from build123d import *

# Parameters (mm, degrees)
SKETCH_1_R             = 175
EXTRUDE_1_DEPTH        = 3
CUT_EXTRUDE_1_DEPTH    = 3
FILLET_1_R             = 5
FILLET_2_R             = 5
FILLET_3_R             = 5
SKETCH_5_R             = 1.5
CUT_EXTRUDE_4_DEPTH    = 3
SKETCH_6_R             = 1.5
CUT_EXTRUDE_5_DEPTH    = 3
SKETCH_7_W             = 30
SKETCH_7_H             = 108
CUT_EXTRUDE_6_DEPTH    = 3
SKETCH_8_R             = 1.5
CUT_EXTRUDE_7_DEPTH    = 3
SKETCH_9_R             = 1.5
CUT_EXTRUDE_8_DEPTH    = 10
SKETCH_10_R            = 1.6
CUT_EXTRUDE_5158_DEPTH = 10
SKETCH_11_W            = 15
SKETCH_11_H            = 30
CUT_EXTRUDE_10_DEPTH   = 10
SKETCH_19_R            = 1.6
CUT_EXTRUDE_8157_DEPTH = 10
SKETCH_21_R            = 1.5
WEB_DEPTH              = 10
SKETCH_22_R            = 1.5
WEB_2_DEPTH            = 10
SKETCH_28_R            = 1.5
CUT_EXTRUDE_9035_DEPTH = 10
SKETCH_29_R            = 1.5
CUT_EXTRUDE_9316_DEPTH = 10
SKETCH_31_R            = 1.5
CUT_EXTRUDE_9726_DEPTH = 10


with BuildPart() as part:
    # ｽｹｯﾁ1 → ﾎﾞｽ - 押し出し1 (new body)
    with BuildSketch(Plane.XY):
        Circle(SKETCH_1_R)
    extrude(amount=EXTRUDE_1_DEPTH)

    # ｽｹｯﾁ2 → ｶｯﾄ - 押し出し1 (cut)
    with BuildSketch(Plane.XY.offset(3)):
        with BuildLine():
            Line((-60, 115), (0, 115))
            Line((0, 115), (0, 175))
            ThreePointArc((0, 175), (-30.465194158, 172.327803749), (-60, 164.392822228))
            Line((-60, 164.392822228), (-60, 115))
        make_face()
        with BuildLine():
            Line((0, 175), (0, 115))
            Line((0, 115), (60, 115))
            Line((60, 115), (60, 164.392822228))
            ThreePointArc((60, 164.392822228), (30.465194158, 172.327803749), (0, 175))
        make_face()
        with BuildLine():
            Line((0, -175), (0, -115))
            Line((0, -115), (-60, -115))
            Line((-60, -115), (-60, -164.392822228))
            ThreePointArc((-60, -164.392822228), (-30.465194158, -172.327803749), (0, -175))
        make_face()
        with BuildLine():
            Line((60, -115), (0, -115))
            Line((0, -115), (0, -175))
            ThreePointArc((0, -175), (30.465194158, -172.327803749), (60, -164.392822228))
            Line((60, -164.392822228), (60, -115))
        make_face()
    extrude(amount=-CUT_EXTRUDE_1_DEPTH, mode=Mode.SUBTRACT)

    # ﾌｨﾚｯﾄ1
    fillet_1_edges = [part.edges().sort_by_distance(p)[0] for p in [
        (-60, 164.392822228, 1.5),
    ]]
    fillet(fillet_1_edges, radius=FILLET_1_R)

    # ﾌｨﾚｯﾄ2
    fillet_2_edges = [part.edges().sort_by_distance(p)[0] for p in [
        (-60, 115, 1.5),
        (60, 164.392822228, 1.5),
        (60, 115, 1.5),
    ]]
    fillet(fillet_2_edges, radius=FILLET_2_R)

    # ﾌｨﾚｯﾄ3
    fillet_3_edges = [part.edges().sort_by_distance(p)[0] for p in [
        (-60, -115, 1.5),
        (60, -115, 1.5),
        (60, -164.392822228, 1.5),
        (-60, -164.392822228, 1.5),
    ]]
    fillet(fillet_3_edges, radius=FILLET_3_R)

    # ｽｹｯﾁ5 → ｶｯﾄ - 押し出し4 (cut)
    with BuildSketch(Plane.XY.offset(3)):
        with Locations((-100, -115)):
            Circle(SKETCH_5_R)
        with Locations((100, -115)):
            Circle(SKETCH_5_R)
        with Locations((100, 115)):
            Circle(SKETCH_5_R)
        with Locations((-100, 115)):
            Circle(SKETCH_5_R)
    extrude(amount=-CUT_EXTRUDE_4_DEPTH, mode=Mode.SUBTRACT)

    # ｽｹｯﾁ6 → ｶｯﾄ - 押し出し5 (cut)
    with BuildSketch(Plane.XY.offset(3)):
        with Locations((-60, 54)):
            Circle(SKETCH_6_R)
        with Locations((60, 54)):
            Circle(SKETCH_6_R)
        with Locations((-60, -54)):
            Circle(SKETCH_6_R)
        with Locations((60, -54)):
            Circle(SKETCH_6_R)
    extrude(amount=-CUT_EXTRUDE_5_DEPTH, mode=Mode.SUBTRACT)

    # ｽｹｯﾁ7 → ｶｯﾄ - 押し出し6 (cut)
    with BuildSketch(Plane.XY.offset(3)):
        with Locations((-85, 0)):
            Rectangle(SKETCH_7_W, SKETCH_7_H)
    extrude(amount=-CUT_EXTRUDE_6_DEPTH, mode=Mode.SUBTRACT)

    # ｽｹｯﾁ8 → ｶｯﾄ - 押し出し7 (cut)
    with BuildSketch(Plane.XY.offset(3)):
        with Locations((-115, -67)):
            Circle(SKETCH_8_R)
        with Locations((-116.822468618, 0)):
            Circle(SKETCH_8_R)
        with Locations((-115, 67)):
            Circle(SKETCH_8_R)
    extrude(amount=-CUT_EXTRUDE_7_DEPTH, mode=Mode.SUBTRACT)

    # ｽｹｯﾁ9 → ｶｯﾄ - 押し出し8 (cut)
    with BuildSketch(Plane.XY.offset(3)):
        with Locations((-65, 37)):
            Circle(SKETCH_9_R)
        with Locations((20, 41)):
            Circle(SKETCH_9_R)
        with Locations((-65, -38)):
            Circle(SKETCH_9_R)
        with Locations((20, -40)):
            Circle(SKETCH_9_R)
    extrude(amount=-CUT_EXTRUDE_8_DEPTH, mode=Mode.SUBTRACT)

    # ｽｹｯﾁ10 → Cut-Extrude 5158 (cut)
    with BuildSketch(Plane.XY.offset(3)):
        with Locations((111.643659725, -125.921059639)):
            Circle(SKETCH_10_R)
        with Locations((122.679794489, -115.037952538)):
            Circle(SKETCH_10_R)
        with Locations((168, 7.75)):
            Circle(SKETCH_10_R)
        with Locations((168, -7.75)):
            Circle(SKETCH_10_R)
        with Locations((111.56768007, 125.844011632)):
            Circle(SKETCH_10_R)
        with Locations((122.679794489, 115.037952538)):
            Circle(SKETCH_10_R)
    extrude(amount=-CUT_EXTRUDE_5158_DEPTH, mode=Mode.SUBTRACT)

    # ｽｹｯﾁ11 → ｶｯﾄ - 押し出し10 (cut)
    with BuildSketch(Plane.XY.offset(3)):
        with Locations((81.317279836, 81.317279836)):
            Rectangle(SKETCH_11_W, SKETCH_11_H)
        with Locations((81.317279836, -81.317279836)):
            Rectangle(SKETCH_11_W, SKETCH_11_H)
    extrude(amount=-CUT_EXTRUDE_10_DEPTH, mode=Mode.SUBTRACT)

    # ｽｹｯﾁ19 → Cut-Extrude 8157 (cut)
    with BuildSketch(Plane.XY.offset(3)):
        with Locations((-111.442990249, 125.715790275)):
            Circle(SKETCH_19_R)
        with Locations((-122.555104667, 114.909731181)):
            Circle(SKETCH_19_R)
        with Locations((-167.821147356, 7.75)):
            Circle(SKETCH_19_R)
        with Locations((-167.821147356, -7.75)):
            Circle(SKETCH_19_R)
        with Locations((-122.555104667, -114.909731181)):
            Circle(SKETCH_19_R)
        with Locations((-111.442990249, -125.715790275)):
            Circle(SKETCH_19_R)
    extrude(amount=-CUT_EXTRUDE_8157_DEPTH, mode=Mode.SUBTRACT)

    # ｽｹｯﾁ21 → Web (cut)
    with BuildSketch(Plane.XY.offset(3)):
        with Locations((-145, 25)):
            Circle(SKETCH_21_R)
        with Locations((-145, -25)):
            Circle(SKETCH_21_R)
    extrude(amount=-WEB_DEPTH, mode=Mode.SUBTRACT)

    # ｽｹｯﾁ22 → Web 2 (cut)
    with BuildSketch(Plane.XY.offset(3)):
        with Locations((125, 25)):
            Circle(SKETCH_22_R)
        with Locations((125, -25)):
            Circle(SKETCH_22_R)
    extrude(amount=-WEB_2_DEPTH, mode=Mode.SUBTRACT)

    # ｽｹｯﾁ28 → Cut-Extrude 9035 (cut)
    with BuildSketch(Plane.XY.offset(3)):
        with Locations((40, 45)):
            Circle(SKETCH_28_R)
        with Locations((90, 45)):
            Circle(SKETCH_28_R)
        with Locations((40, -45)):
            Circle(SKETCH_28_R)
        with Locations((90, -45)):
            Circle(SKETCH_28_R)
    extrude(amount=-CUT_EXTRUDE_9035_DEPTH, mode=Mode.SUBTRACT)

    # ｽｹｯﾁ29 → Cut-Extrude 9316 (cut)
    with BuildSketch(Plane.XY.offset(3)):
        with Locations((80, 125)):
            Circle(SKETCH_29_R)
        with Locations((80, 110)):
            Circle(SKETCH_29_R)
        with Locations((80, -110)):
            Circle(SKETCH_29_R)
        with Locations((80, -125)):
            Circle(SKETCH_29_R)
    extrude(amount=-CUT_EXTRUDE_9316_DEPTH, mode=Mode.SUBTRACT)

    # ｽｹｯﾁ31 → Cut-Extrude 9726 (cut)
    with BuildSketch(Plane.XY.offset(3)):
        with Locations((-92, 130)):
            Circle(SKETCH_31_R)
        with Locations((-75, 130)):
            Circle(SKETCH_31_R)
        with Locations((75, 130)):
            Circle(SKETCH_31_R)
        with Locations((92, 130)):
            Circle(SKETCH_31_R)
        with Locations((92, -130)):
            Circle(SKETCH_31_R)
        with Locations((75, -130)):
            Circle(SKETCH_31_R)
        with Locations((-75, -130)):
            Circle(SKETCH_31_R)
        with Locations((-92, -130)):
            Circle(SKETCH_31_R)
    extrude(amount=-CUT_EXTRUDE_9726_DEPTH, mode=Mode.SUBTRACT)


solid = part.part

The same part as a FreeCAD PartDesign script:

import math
import FreeCAD as App
import Part
import Sketcher


def edges_at(feature, points):
    """Names of the edges that pass closest to the given points."""
    edges = feature.Shape.Edges
    near = lambda p: min(range(len(edges)), key=lambda i: edges[i].distToShape(Part.Vertex(*p))[0])
    return sorted({f"Edge{near(p) + 1}" for p in points})

doc = App.newDocument("Part")
params = doc.addObject("Spreadsheet::Sheet", "Params")
for row, (alias, value) in enumerate([
    ("sketch1_diameter", "350 mm"),
    ("pad1_length", "3 mm"),
    ("sketch2_radius", "175 mm"),
    ("sketch2_width", "120 mm"),
    ("pocket1_length", "3 mm"),
    ("fillet_radius", "5 mm"),
    ("fillet2_radius", "5 mm"),
    ("fillet3_radius", "5 mm"),
    ("sketch3_diameter", "3 mm"),
    ("pocket2_length", "3 mm"),
    ("sketch4_diameter", "3 mm"),
    ("pocket3_length", "3 mm"),
    ("sketch5_width", "30 mm"),
    ("sketch5_height", "108 mm"),
    ("pocket4_length", "3 mm"),
    ("sketch6_diameter", "3 mm"),
    ("pocket5_length", "3 mm"),
    ("sketch7_diameter", "3 mm"),
    ("pocket6_length", "10 mm"),
    ("sketch8_diameter", "3.2 mm"),
    ("pocket7_length", "10 mm"),
    ("sketch9_width", "15 mm"),
    ("sketch9_height", "30 mm"),
    ("pocket8_length", "10 mm"),
    ("sketch10_diameter", "3.2 mm"),
    ("pocket9_length", "10 mm"),
    ("sketch11_diameter", "3 mm"),
    ("pocket10_length", "10 mm"),
    ("sketch12_diameter", "3 mm"),
    ("pocket11_length", "10 mm"),
    ("sketch13_diameter", "3 mm"),
    ("pocket12_length", "10 mm"),
    ("sketch14_diameter", "3 mm"),
    ("pocket13_length", "10 mm"),
    ("sketch15_diameter", "3 mm"),
    ("pocket14_length", "10 mm"),
], start=1):
    params.set(f"A{row}", alias)
    params.set(f"B{row}", "=" + value)
    params.setAlias(f"B{row}", alias)

body = doc.addObject("PartDesign::Body", "Body")

# Sketch on XY plane
sketch1 = body.newObject("Sketcher::SketchObject", "Sketch")
sketch1.AttachmentSupport = (doc.getObject("XY_Plane"), [""])
sketch1.MapMode = "FlatFace"
sketch1.addGeometry(Part.Circle(App.Vector(0, 0, 0), App.Vector(0, 0, 1), 175), False)
sketch1.addConstraint([
    Sketcher.Constraint("Coincident", 0, 3, -1, 1),
    Sketcher.Constraint("Diameter", 0, 350.0),
])
sketch1.setExpression("Constraints[1]", "Params.sketch1_diameter")
pad1 = body.newObject("PartDesign::Pad", "Pad")
pad1.Profile = sketch1
pad1.setExpression("Length", "Params.pad1_length")

# Sketch on XY plane
sketch2 = body.newObject("Sketcher::SketchObject", "Sketch001")
sketch2.AttachmentSupport = (doc.getObject("XY_Plane"), [""])
sketch2.MapMode = "FlatFace"
sketch2.AttachmentOffset = App.Placement(App.Vector(0, 0, 3), App.Rotation())
sketch2.addGeometry([
    Part.LineSegment(App.Vector(-60, 115, 0), App.Vector(60, 115, 0)),  # 0
    Part.LineSegment(App.Vector(60, 115, 0), App.Vector(60, 164.392822, 0)),  # 1
    Part.ArcOfCircle(Part.Circle(App.Vector(0, 0, 0), App.Vector(0, 0, 1), 175), math.radians(69.948957), math.radians(90)),  # 2
    Part.ArcOfCircle(Part.Circle(App.Vector(0, 0, 0), App.Vector(0, 0, 1), 175), math.radians(90), math.radians(110.051043)),  # 3
    Part.LineSegment(App.Vector(-60, 164.392822, 0), App.Vector(-60, 115, 0)),  # 4
    Part.LineSegment(App.Vector(-60, -115, 0), App.Vector(-60, -164.392822, 0)),  # 5
    Part.ArcOfCircle(Part.Circle(App.Vector(0, 0, 0), App.Vector(0, 0, 1), 175), math.radians(-110.051043), math.radians(-90)),  # 6
    Part.ArcOfCircle(Part.Circle(App.Vector(0, 0, 0), App.Vector(0, 0, 1), 175), math.radians(-90), math.radians(-69.948957)),  # 7
    Part.LineSegment(App.Vector(60, -164.392822, 0), App.Vector(60, -115, 0)),  # 8
    Part.LineSegment(App.Vector(60, -115, 0), App.Vector(-60, -115, 0)),  # 9
], False)
sketch2.addConstraint([
    Sketcher.Constraint("Coincident", 0, 2, 1, 1),
    Sketcher.Constraint("Coincident", 1, 2, 2, 1),
    Sketcher.Constraint("Tangent", 2, 2, 3, 1),
    Sketcher.Constraint("Coincident", 3, 2, 4, 1),
    Sketcher.Constraint("Coincident", 4, 2, 0, 1),
    Sketcher.Constraint("Coincident", 5, 2, 6, 1),
    Sketcher.Constraint("Tangent", 6, 2, 7, 1),
    Sketcher.Constraint("Coincident", 7, 2, 8, 1),
    Sketcher.Constraint("Coincident", 8, 2, 9, 1),
    Sketcher.Constraint("Coincident", 9, 2, 5, 1),
    Sketcher.Constraint("Horizontal", 0),
    Sketcher.Constraint("Vertical", 1),
    Sketcher.Constraint("Vertical", 4),
    Sketcher.Constraint("Vertical", 5),
    Sketcher.Constraint("Vertical", 8),
    Sketcher.Constraint("Horizontal", 9),
    Sketcher.Constraint("Coincident", 2, 3, -1, 1),
    Sketcher.Constraint("Coincident", 6, 3, -1, 1),
    Sketcher.Constraint("Equal", 2, 3),
    Sketcher.Constraint("Equal", 3, 6),
    Sketcher.Constraint("Equal", 6, 7),
    Sketcher.Constraint("Symmetric", 4, 2, 8, 2, -1, 1),
    Sketcher.Constraint("PointOnObject", 2, 2, -2),
    Sketcher.Constraint("PointOnObject", 6, 2, -2),
    Sketcher.Constraint("Horizontal", 1, 2, 3, 2),
    Sketcher.Constraint("Horizontal", 5, 2, 7, 2),
    Sketcher.Constraint("Radius", 2, 175.0),
    Sketcher.Constraint("DistanceX", 0, 1, 0, 2, 120.0),
    Sketcher.Constraint("DistanceY", -1, 1, 0, 2, 115.0),
])
sketch2.setExpression("Constraints[26]", "Params.sketch2_radius")
sketch2.setExpression("Constraints[27]", "Params.sketch2_width")
pocket1 = body.newObject("PartDesign::Pocket", "Pocket")
pocket1.Profile = sketch2
pocket1.setExpression("Length", "Params.pocket1_length")
doc.recompute()

fillet = body.newObject("PartDesign::Fillet", "Fillet")
fillet.Base = (pocket1, edges_at(pocket1, [(-60, 164.393, 1.5)]))
fillet.setExpression("Radius", "Params.fillet_radius")
doc.recompute()

fillet2 = body.newObject("PartDesign::Fillet", "Fillet001")
fillet2.Base = (fillet, edges_at(fillet, [(-60, 115, 1.5), (60, 164.393, 1.5), (60, 115, 1.5)]))
fillet2.setExpression("Radius", "Params.fillet2_radius")
doc.recompute()

fillet3 = body.newObject("PartDesign::Fillet", "Fillet002")
fillet3.Base = (fillet2, edges_at(fillet2, [
    (-60, -115, 1.5),
    (60, -115, 1.5),
    (60, -164.393, 1.5),
    (-60, -164.393, 1.5),
]))
fillet3.setExpression("Radius", "Params.fillet3_radius")

# Sketch on XY plane
sketch3 = body.newObject("Sketcher::SketchObject", "Sketch002")
sketch3.AttachmentSupport = (doc.getObject("XY_Plane"), [""])
sketch3.MapMode = "FlatFace"
sketch3.AttachmentOffset = App.Placement(App.Vector(0, 0, 3), App.Rotation())
sketch3.addGeometry([
    Part.Circle(App.Vector(-100, -115, 0), App.Vector(0, 0, 1), 1.5),
    Part.Circle(App.Vector(100, -115, 0), App.Vector(0, 0, 1), 1.5),
    Part.Circle(App.Vector(100, 115, 0), App.Vector(0, 0, 1), 1.5),
    Part.Circle(App.Vector(-100, 115, 0), App.Vector(0, 0, 1), 1.5),
], False)
sketch3.addConstraint([
    Sketcher.Constraint("Equal", 0, 1),
    Sketcher.Constraint("Equal", 1, 2),
    Sketcher.Constraint("Equal", 2, 3),
    Sketcher.Constraint("Symmetric", 0, 3, 2, 3, -1, 1),
    Sketcher.Constraint("Symmetric", 1, 3, 3, 3, -1, 1),
    Sketcher.Constraint("Symmetric", 0, 3, 1, 3, -2),
    Sketcher.Constraint("Diameter", 0, 3.0),
    Sketcher.Constraint("DistanceX", 0, 3, -1, 1, 100.0),
    Sketcher.Constraint("DistanceY", 0, 3, -1, 1, 115.0),
])
sketch3.setExpression("Constraints[6]", "Params.sketch3_diameter")
pocket2 = body.newObject("PartDesign::Pocket", "Pocket001")
pocket2.Profile = sketch3
pocket2.setExpression("Length", "Params.pocket2_length")

# Sketch on XY plane
sketch4 = body.newObject("Sketcher::SketchObject", "Sketch003")
sketch4.AttachmentSupport = (doc.getObject("XY_Plane"), [""])
sketch4.MapMode = "FlatFace"
sketch4.AttachmentOffset = App.Placement(App.Vector(0, 0, 3), App.Rotation())
sketch4.addGeometry([
    Part.Circle(App.Vector(-60, 54, 0), App.Vector(0, 0, 1), 1.5),
    Part.Circle(App.Vector(60, 54, 0), App.Vector(0, 0, 1), 1.5),
    Part.Circle(App.Vector(-60, -54, 0), App.Vector(0, 0, 1), 1.5),
    Part.Circle(App.Vector(60, -54, 0), App.Vector(0, 0, 1), 1.5),
], False)
sketch4.addConstraint([
    Sketcher.Constraint("Equal", 0, 1),
    Sketcher.Constraint("Equal", 1, 2),
    Sketcher.Constraint("Equal", 2, 3),
    Sketcher.Constraint("Symmetric", 1, 3, 2, 3, -1, 1),
    Sketcher.Constraint("Symmetric", 0, 3, 3, 3, -1, 1),
    Sketcher.Constraint("Symmetric", 0, 3, 1, 3, -2),
    Sketcher.Constraint("Diameter", 0, 3.0),
    Sketcher.Constraint("DistanceX", 0, 3, -1, 1, 60.0),
    Sketcher.Constraint("DistanceY", -1, 1, 0, 3, 54.0),
])
sketch4.setExpression("Constraints[6]", "Params.sketch4_diameter")
pocket3 = body.newObject("PartDesign::Pocket", "Pocket002")
pocket3.Profile = sketch4
pocket3.setExpression("Length", "Params.pocket3_length")

# Sketch on XY plane
sketch5 = body.newObject("Sketcher::SketchObject", "Sketch004")
sketch5.AttachmentSupport = (doc.getObject("XY_Plane"), [""])
sketch5.MapMode = "FlatFace"
sketch5.AttachmentOffset = App.Placement(App.Vector(0, 0, 3), App.Rotation())
sketch5.addGeometry([
    Part.LineSegment(App.Vector(-100, 54, 0), App.Vector(-100, -54, 0)),
    Part.LineSegment(App.Vector(-100, -54, 0), App.Vector(-70, -54, 0)),
    Part.LineSegment(App.Vector(-70, -54, 0), App.Vector(-70, 54, 0)),
    Part.LineSegment(App.Vector(-70, 54, 0), App.Vector(-100, 54, 0)),
], False)
sketch5.addConstraint([
    Sketcher.Constraint("Coincident", 0, 2, 1, 1),
    Sketcher.Constraint("Coincident", 1, 2, 2, 1),
    Sketcher.Constraint("Coincident", 2, 2, 3, 1),
    Sketcher.Constraint("Coincident", 3, 2, 0, 1),
    Sketcher.Constraint("Vertical", 0),
    Sketcher.Constraint("Horizontal", 1),
    Sketcher.Constraint("Vertical", 2),
    Sketcher.Constraint("Horizontal", 3),
    Sketcher.Constraint("DistanceX", 1, 1, 1, 2, 30.0),
    Sketcher.Constraint("DistanceY", 0, 2, 0, 1, 108.0),
    Sketcher.Constraint("DistanceX", 0, 2, -1, 1, 100.0),
    Sketcher.Constraint("DistanceY", 0, 2, -1, 1, 54.0),
])
sketch5.setExpression("Constraints[8]", "Params.sketch5_width")
sketch5.setExpression("Constraints[9]", "Params.sketch5_height")
pocket4 = body.newObject("PartDesign::Pocket", "Pocket003")
pocket4.Profile = sketch5
pocket4.setExpression("Length", "Params.pocket4_length")

# Sketch on XY plane
sketch6 = body.newObject("Sketcher::SketchObject", "Sketch005")
sketch6.AttachmentSupport = (doc.getObject("XY_Plane"), [""])
sketch6.MapMode = "FlatFace"
sketch6.AttachmentOffset = App.Placement(App.Vector(0, 0, 3), App.Rotation())
sketch6.addGeometry([
    Part.Circle(App.Vector(-115, -67, 0), App.Vector(0, 0, 1), 1.5),
    Part.Circle(App.Vector(-116.822469, 0, 0), App.Vector(0, 0, 1), 1.5),
    Part.Circle(App.Vector(-115, 67, 0), App.Vector(0, 0, 1), 1.5),
], False)
sketch6.addConstraint([
    Sketcher.Constraint("Equal", 0, 1),
    Sketcher.Constraint("Equal", 1, 2),
    Sketcher.Constraint("Symmetric", 0, 3, 2, 3, -1),
    Sketcher.Constraint("PointOnObject", 1, 3, -1),
    Sketcher.Constraint("Diameter", 0, 3.0),
    Sketcher.Constraint("DistanceX", 0, 3, -1, 1, 115.0),
    Sketcher.Constraint("DistanceY", 0, 3, -1, 1, 67.0),
    Sketcher.Constraint("DistanceX", 1, 3, -1, 1, 116.822469),
])
sketch6.setExpression("Constraints[4]", "Params.sketch6_diameter")
pocket5 = body.newObject("PartDesign::Pocket", "Pocket004")
pocket5.Profile = sketch6
pocket5.setExpression("Length", "Params.pocket5_length")

# Sketch on XY plane
sketch7 = body.newObject("Sketcher::SketchObject", "Sketch006")
sketch7.AttachmentSupport = (doc.getObject("XY_Plane"), [""])
sketch7.MapMode = "FlatFace"
sketch7.AttachmentOffset = App.Placement(App.Vector(0, 0, 3), App.Rotation())
sketch7.addGeometry([
    Part.Circle(App.Vector(-65, 37, 0), App.Vector(0, 0, 1), 1.5),
    Part.Circle(App.Vector(20, 41, 0), App.Vector(0, 0, 1), 1.5),
    Part.Circle(App.Vector(-65, -38, 0), App.Vector(0, 0, 1), 1.5),
    Part.Circle(App.Vector(20, -40, 0), App.Vector(0, 0, 1), 1.5),
], False)
sketch7.addConstraint([
    Sketcher.Constraint("Equal", 0, 1),
    Sketcher.Constraint("Equal", 1, 2),
    Sketcher.Constraint("Equal", 2, 3),
    Sketcher.Constraint("Vertical", 0, 3, 2, 3),
    Sketcher.Constraint("Vertical", 1, 3, 3, 3),
    Sketcher.Constraint("Diameter", 0, 3.0),
    Sketcher.Constraint("DistanceX", 0, 3, -1, 1, 65.0),
    Sketcher.Constraint("DistanceY", -1, 1, 0, 3, 37.0),
    Sketcher.Constraint("DistanceX", -1, 1, 1, 3, 20.0),
    Sketcher.Constraint("DistanceY", -1, 1, 1, 3, 41.0),
    Sketcher.Constraint("DistanceY", 2, 3, -1, 1, 38.0),
    Sketcher.Constraint("DistanceY", 3, 3, -1, 1, 40.0),
])
sketch7.setExpression("Constraints[5]", "Params.sketch7_diameter")
pocket6 = body.newObject("PartDesign::Pocket", "Pocket005")
pocket6.Profile = sketch7
pocket6.setExpression("Length", "Params.pocket6_length")

# Sketch on XY plane
sketch8 = body.newObject("Sketcher::SketchObject", "Sketch007")
sketch8.AttachmentSupport = (doc.getObject("XY_Plane"), [""])
sketch8.MapMode = "FlatFace"
sketch8.AttachmentOffset = App.Placement(App.Vector(0, 0, 3), App.Rotation())
sketch8.addGeometry([
    Part.Circle(App.Vector(111.64366, -125.92106, 0), App.Vector(0, 0, 1), 1.6),  # 0
    Part.Circle(App.Vector(122.679794, -115.037953, 0), App.Vector(0, 0, 1), 1.6),  # 1
    Part.Circle(App.Vector(168, 7.75, 0), App.Vector(0, 0, 1), 1.6),  # 2
    Part.Circle(App.Vector(168, -7.75, 0), App.Vector(0, 0, 1), 1.6),  # 3
    Part.Circle(App.Vector(111.56768, 125.844012, 0), App.Vector(0, 0, 1), 1.6),  # 4
    Part.Circle(App.Vector(122.679794, 115.037953, 0), App.Vector(0, 0, 1), 1.6),  # 5
], False)
sketch8.addConstraint([
    Sketcher.Constraint("Equal", 0, 1),
    Sketcher.Constraint("Equal", 1, 2),
    Sketcher.Constraint("Equal", 2, 3),
    Sketcher.Constraint("Equal", 3, 4),
    Sketcher.Constraint("Equal", 4, 5),
    Sketcher.Constraint("Symmetric", 2, 3, 3, 3, -1),
    Sketcher.Constraint("Symmetric", 1, 3, 5, 3, -1),
    Sketcher.Constraint("Diameter", 0, 3.2),
    Sketcher.Constraint("DistanceX", -1, 1, 2, 3, 168.0),
    Sketcher.Constraint("DistanceY", 3, 3, 2, 3, 15.5),
    Sketcher.Constraint("DistanceX", -1, 1, 0, 3, 111.64366),
    Sketcher.Constraint("DistanceY", 0, 3, -1, 1, 125.92106),
    Sketcher.Constraint("DistanceX", -1, 1, 4, 3, 111.56768),
    Sketcher.Constraint("DistanceY", -1, 1, 4, 3, 125.844012),
    Sketcher.Constraint("DistanceY", 5, 3, 4, 3, 10.806059),
    Sketcher.Constraint("DistanceX", -1, 1, 1, 3, 122.679794),
])
sketch8.setExpression("Constraints[7]", "Params.sketch8_diameter")
pocket7 = body.newObject("PartDesign::Pocket", "Pocket006")
pocket7.Profile = sketch8
pocket7.setExpression("Length", "Params.pocket7_length")

# Sketch on XY plane
sketch9 = body.newObject("Sketcher::SketchObject", "Sketch008")
sketch9.AttachmentSupport = (doc.getObject("XY_Plane"), [""])
sketch9.MapMode = "FlatFace"
sketch9.AttachmentOffset = App.Placement(App.Vector(0, 0, 3), App.Rotation())
sketch9.addGeometry([
    Part.LineSegment(App.Vector(73.81728, 96.31728, 0), App.Vector(73.81728, 66.31728, 0)),  # 0
    Part.LineSegment(App.Vector(73.81728, 66.31728, 0), App.Vector(88.81728, 66.31728, 0)),  # 1
    Part.LineSegment(App.Vector(88.81728, 66.31728, 0), App.Vector(88.81728, 96.31728, 0)),  # 2
    Part.LineSegment(App.Vector(88.81728, 96.31728, 0), App.Vector(73.81728, 96.31728, 0)),  # 3
    Part.LineSegment(App.Vector(73.81728, -66.31728, 0), App.Vector(73.81728, -96.31728, 0)),  # 4
    Part.LineSegment(App.Vector(73.81728, -96.31728, 0), App.Vector(88.81728, -96.31728, 0)),  # 5
    Part.LineSegment(App.Vector(88.81728, -96.31728, 0), App.Vector(88.81728, -66.31728, 0)),  # 6
    Part.LineSegment(App.Vector(88.81728, -66.31728, 0), App.Vector(73.81728, -66.31728, 0)),  # 7
], False)
sketch9.addConstraint([
    Sketcher.Constraint("Coincident", 0, 2, 1, 1),
    Sketcher.Constraint("Coincident", 1, 2, 2, 1),
    Sketcher.Constraint("Coincident", 2, 2, 3, 1),
    Sketcher.Constraint("Coincident", 3, 2, 0, 1),
    Sketcher.Constraint("Coincident", 4, 2, 5, 1),
    Sketcher.Constraint("Coincident", 5, 2, 6, 1),
    Sketcher.Constraint("Coincident", 6, 2, 7, 1),
    Sketcher.Constraint("Coincident", 7, 2, 4, 1),
    Sketcher.Constraint("Vertical", 0),
    Sketcher.Constraint("Horizontal", 1),
    Sketcher.Constraint("Vertical", 2),
    Sketcher.Constraint("Horizontal", 3),
    Sketcher.Constraint("Vertical", 4),
    Sketcher.Constraint("Horizontal", 5),
    Sketcher.Constraint("Vertical", 6),
    Sketcher.Constraint("Horizontal", 7),
    Sketcher.Constraint("Symmetric", 3, 2, 4, 2, -1),
    Sketcher.Constraint("Symmetric", 1, 2, 6, 2, -1),
    Sketcher.Constraint("DistanceX", 1, 1, 1, 2, 15.0),
    Sketcher.Constraint("DistanceY", 0, 2, 0, 1, 30.0),
    Sketcher.Constraint("DistanceX", -1, 1, 0, 2, 73.81728),
    Sketcher.Constraint("DistanceY", -1, 1, 0, 2, 66.31728),
])
sketch9.setExpression("Constraints[18]", "Params.sketch9_width")
sketch9.setExpression("Constraints[19]", "Params.sketch9_height")
pocket8 = body.newObject("PartDesign::Pocket", "Pocket007")
pocket8.Profile = sketch9
pocket8.setExpression("Length", "Params.pocket8_length")

# Sketch on XY plane
sketch10 = body.newObject("Sketcher::SketchObject", "Sketch009")
sketch10.AttachmentSupport = (doc.getObject("XY_Plane"), [""])
sketch10.MapMode = "FlatFace"
sketch10.AttachmentOffset = App.Placement(App.Vector(0, 0, 3), App.Rotation())
sketch10.addGeometry([
    Part.Circle(App.Vector(-111.44299, 125.71579, 0), App.Vector(0, 0, 1), 1.6),  # 0
    Part.Circle(App.Vector(-122.555105, 114.909731, 0), App.Vector(0, 0, 1), 1.6),  # 1
    Part.Circle(App.Vector(-167.821147, 7.75, 0), App.Vector(0, 0, 1), 1.6),  # 2
    Part.Circle(App.Vector(-167.821147, -7.75, 0), App.Vector(0, 0, 1), 1.6),  # 3
    Part.Circle(App.Vector(-122.555105, -114.909731, 0), App.Vector(0, 0, 1), 1.6),  # 4
    Part.Circle(App.Vector(-111.44299, -125.71579, 0), App.Vector(0, 0, 1), 1.6),  # 5
], False)
sketch10.addConstraint([
    Sketcher.Constraint("Equal", 0, 1),
    Sketcher.Constraint("Equal", 1, 2),
    Sketcher.Constraint("Equal", 2, 3),
    Sketcher.Constraint("Equal", 3, 4),
    Sketcher.Constraint("Equal", 4, 5),
    Sketcher.Constraint("Symmetric", 2, 3, 3, 3, -1),
    Sketcher.Constraint("Symmetric", 1, 3, 4, 3, -1),
    Sketcher.Constraint("Symmetric", 0, 3, 5, 3, -1),
    Sketcher.Constraint("Diameter", 0, 3.2),
    Sketcher.Constraint("DistanceY", 3, 3, 2, 3, 15.5),
    Sketcher.Constraint("DistanceX", 0, 3, -1, 1, 111.44299),
    Sketcher.Constraint("DistanceY", -1, 1, 0, 3, 125.71579),
    Sketcher.Constraint("DistanceY", -1, 1, 1, 3, 114.909731),
    Sketcher.Constraint("DistanceX", 1, 3, -1, 1, 122.555105),
    Sketcher.Constraint("DistanceX", 2, 3, -1, 1, 167.821147),
])
sketch10.setExpression("Constraints[8]", "Params.sketch10_diameter")
pocket9 = body.newObject("PartDesign::Pocket", "Pocket008")
pocket9.Profile = sketch10
pocket9.setExpression("Length", "Params.pocket9_length")

# Sketch on XY plane
sketch11 = body.newObject("Sketcher::SketchObject", "Sketch010")
sketch11.AttachmentSupport = (doc.getObject("XY_Plane"), [""])
sketch11.MapMode = "FlatFace"
sketch11.AttachmentOffset = App.Placement(App.Vector(0, 0, 3), App.Rotation())
sketch11.addGeometry([
    Part.Circle(App.Vector(-145, 25, 0), App.Vector(0, 0, 1), 1.5),
    Part.Circle(App.Vector(-145, -25, 0), App.Vector(0, 0, 1), 1.5),
], False)
sketch11.addConstraint([
    Sketcher.Constraint("Equal", 0, 1),
    Sketcher.Constraint("Symmetric", 0, 3, 1, 3, -1),
    Sketcher.Constraint("Diameter", 0, 3.0),
    Sketcher.Constraint("DistanceX", 0, 3, -1, 1, 145.0),
    Sketcher.Constraint("DistanceY", -1, 1, 0, 3, 25.0),
])
sketch11.setExpression("Constraints[2]", "Params.sketch11_diameter")
pocket10 = body.newObject("PartDesign::Pocket", "Pocket009")
pocket10.Profile = sketch11
pocket10.setExpression("Length", "Params.pocket10_length")

# Sketch on XY plane
sketch12 = body.newObject("Sketcher::SketchObject", "Sketch011")
sketch12.AttachmentSupport = (doc.getObject("XY_Plane"), [""])
sketch12.MapMode = "FlatFace"
sketch12.AttachmentOffset = App.Placement(App.Vector(0, 0, 3), App.Rotation())
sketch12.addGeometry([
    Part.Circle(App.Vector(125, 25, 0), App.Vector(0, 0, 1), 1.5),
    Part.Circle(App.Vector(125, -25, 0), App.Vector(0, 0, 1), 1.5),
], False)
sketch12.addConstraint([
    Sketcher.Constraint("Equal", 0, 1),
    Sketcher.Constraint("Symmetric", 0, 3, 1, 3, -1),
    Sketcher.Constraint("Diameter", 0, 3.0),
    Sketcher.Constraint("DistanceX", -1, 1, 0, 3, 125.0),
    Sketcher.Constraint("DistanceY", -1, 1, 0, 3, 25.0),
])
sketch12.setExpression("Constraints[2]", "Params.sketch12_diameter")
pocket11 = body.newObject("PartDesign::Pocket", "Pocket010")
pocket11.Profile = sketch12
pocket11.setExpression("Length", "Params.pocket11_length")

# Sketch on XY plane
sketch13 = body.newObject("Sketcher::SketchObject", "Sketch012")
sketch13.AttachmentSupport = (doc.getObject("XY_Plane"), [""])
sketch13.MapMode = "FlatFace"
sketch13.AttachmentOffset = App.Placement(App.Vector(0, 0, 3), App.Rotation())
sketch13.addGeometry([
    Part.Circle(App.Vector(40, 45, 0), App.Vector(0, 0, 1), 1.5),
    Part.Circle(App.Vector(90, 45, 0), App.Vector(0, 0, 1), 1.5),
    Part.Circle(App.Vector(40, -45, 0), App.Vector(0, 0, 1), 1.5),
    Part.Circle(App.Vector(90, -45, 0), App.Vector(0, 0, 1), 1.5),
], False)
sketch13.addConstraint([
    Sketcher.Constraint("Equal", 0, 1),
    Sketcher.Constraint("Equal", 1, 2),
    Sketcher.Constraint("Equal", 2, 3),
    Sketcher.Constraint("Symmetric", 0, 3, 2, 3, -1),
    Sketcher.Constraint("Symmetric", 1, 3, 3, 3, -1),
    Sketcher.Constraint("Horizontal", 0, 3, 1, 3),
    Sketcher.Constraint("Diameter", 0, 3.0),
    Sketcher.Constraint("DistanceX", -1, 1, 0, 3, 40.0),
    Sketcher.Constraint("DistanceY", -1, 1, 0, 3, 45.0),
    Sketcher.Constraint("DistanceX", -1, 1, 1, 3, 90.0),
])
sketch13.setExpression("Constraints[6]", "Params.sketch13_diameter")
pocket12 = body.newObject("PartDesign::Pocket", "Pocket011")
pocket12.Profile = sketch13
pocket12.setExpression("Length", "Params.pocket12_length")

# Sketch on XY plane
sketch14 = body.newObject("Sketcher::SketchObject", "Sketch013")
sketch14.AttachmentSupport = (doc.getObject("XY_Plane"), [""])
sketch14.MapMode = "FlatFace"
sketch14.AttachmentOffset = App.Placement(App.Vector(0, 0, 3), App.Rotation())
sketch14.addGeometry([
    Part.Circle(App.Vector(80, 125, 0), App.Vector(0, 0, 1), 1.5),
    Part.Circle(App.Vector(80, 110, 0), App.Vector(0, 0, 1), 1.5),
    Part.Circle(App.Vector(80, -110, 0), App.Vector(0, 0, 1), 1.5),
    Part.Circle(App.Vector(80, -125, 0), App.Vector(0, 0, 1), 1.5),
], False)
sketch14.addConstraint([
    Sketcher.Constraint("Equal", 0, 1),
    Sketcher.Constraint("Equal", 1, 2),
    Sketcher.Constraint("Equal", 2, 3),
    Sketcher.Constraint("Symmetric", 1, 3, 2, 3, -1),
    Sketcher.Constraint("Symmetric", 0, 3, 3, 3, -1),
    Sketcher.Constraint("Vertical", 0, 3, 1, 3),
    Sketcher.Constraint("Diameter", 0, 3.0),
    Sketcher.Constraint("DistanceX", -1, 1, 0, 3, 80.0),
    Sketcher.Constraint("DistanceY", -1, 1, 0, 3, 125.0),
    Sketcher.Constraint("DistanceY", -1, 1, 1, 3, 110.0),
])
sketch14.setExpression("Constraints[6]", "Params.sketch14_diameter")
pocket13 = body.newObject("PartDesign::Pocket", "Pocket012")
pocket13.Profile = sketch14
pocket13.setExpression("Length", "Params.pocket13_length")

# Sketch on XY plane
sketch15 = body.newObject("Sketcher::SketchObject", "Sketch014")
sketch15.AttachmentSupport = (doc.getObject("XY_Plane"), [""])
sketch15.MapMode = "FlatFace"
sketch15.AttachmentOffset = App.Placement(App.Vector(0, 0, 3), App.Rotation())
sketch15.addGeometry([
    Part.Circle(App.Vector(-92, 130, 0), App.Vector(0, 0, 1), 1.5),  # 0
    Part.Circle(App.Vector(-75, 130, 0), App.Vector(0, 0, 1), 1.5),  # 1
    Part.Circle(App.Vector(75, 130, 0), App.Vector(0, 0, 1), 1.5),  # 2
    Part.Circle(App.Vector(92, 130, 0), App.Vector(0, 0, 1), 1.5),  # 3
    Part.Circle(App.Vector(92, -130, 0), App.Vector(0, 0, 1), 1.5),  # 4
    Part.Circle(App.Vector(75, -130, 0), App.Vector(0, 0, 1), 1.5),  # 5
    Part.Circle(App.Vector(-75, -130, 0), App.Vector(0, 0, 1), 1.5),  # 6
    Part.Circle(App.Vector(-92, -130, 0), App.Vector(0, 0, 1), 1.5),  # 7
], False)
sketch15.addConstraint([
    Sketcher.Constraint("Equal", 0, 1),
    Sketcher.Constraint("Equal", 1, 2),
    Sketcher.Constraint("Equal", 2, 3),
    Sketcher.Constraint("Equal", 3, 4),
    Sketcher.Constraint("Equal", 4, 5),
    Sketcher.Constraint("Equal", 5, 6),
    Sketcher.Constraint("Equal", 6, 7),
    Sketcher.Constraint("Symmetric", 0, 3, 4, 3, -1, 1),
    Sketcher.Constraint("Symmetric", 1, 3, 5, 3, -1, 1),
    Sketcher.Constraint("Symmetric", 2, 3, 6, 3, -1, 1),
    Sketcher.Constraint("Symmetric", 3, 3, 7, 3, -1, 1),
    Sketcher.Constraint("Symmetric", 1, 3, 2, 3, -2),
    Sketcher.Constraint("Symmetric", 0, 3, 3, 3, -2),
    Sketcher.Constraint("Horizontal", 0, 3, 1, 3),
    Sketcher.Constraint("Diameter", 0, 3.0),
    Sketcher.Constraint("DistanceX", 0, 3, -1, 1, 92.0),
    Sketcher.Constraint("DistanceY", -1, 1, 0, 3, 130.0),
    Sketcher.Constraint("DistanceX", 1, 3, -1, 1, 75.0),
])
sketch15.setExpression("Constraints[14]", "Params.sketch15_diameter")
pocket14 = body.newObject("PartDesign::Pocket", "Pocket013")
pocket14.Profile = sketch15
pocket14.setExpression("Length", "Params.pocket14_length")

doc.recompute()
